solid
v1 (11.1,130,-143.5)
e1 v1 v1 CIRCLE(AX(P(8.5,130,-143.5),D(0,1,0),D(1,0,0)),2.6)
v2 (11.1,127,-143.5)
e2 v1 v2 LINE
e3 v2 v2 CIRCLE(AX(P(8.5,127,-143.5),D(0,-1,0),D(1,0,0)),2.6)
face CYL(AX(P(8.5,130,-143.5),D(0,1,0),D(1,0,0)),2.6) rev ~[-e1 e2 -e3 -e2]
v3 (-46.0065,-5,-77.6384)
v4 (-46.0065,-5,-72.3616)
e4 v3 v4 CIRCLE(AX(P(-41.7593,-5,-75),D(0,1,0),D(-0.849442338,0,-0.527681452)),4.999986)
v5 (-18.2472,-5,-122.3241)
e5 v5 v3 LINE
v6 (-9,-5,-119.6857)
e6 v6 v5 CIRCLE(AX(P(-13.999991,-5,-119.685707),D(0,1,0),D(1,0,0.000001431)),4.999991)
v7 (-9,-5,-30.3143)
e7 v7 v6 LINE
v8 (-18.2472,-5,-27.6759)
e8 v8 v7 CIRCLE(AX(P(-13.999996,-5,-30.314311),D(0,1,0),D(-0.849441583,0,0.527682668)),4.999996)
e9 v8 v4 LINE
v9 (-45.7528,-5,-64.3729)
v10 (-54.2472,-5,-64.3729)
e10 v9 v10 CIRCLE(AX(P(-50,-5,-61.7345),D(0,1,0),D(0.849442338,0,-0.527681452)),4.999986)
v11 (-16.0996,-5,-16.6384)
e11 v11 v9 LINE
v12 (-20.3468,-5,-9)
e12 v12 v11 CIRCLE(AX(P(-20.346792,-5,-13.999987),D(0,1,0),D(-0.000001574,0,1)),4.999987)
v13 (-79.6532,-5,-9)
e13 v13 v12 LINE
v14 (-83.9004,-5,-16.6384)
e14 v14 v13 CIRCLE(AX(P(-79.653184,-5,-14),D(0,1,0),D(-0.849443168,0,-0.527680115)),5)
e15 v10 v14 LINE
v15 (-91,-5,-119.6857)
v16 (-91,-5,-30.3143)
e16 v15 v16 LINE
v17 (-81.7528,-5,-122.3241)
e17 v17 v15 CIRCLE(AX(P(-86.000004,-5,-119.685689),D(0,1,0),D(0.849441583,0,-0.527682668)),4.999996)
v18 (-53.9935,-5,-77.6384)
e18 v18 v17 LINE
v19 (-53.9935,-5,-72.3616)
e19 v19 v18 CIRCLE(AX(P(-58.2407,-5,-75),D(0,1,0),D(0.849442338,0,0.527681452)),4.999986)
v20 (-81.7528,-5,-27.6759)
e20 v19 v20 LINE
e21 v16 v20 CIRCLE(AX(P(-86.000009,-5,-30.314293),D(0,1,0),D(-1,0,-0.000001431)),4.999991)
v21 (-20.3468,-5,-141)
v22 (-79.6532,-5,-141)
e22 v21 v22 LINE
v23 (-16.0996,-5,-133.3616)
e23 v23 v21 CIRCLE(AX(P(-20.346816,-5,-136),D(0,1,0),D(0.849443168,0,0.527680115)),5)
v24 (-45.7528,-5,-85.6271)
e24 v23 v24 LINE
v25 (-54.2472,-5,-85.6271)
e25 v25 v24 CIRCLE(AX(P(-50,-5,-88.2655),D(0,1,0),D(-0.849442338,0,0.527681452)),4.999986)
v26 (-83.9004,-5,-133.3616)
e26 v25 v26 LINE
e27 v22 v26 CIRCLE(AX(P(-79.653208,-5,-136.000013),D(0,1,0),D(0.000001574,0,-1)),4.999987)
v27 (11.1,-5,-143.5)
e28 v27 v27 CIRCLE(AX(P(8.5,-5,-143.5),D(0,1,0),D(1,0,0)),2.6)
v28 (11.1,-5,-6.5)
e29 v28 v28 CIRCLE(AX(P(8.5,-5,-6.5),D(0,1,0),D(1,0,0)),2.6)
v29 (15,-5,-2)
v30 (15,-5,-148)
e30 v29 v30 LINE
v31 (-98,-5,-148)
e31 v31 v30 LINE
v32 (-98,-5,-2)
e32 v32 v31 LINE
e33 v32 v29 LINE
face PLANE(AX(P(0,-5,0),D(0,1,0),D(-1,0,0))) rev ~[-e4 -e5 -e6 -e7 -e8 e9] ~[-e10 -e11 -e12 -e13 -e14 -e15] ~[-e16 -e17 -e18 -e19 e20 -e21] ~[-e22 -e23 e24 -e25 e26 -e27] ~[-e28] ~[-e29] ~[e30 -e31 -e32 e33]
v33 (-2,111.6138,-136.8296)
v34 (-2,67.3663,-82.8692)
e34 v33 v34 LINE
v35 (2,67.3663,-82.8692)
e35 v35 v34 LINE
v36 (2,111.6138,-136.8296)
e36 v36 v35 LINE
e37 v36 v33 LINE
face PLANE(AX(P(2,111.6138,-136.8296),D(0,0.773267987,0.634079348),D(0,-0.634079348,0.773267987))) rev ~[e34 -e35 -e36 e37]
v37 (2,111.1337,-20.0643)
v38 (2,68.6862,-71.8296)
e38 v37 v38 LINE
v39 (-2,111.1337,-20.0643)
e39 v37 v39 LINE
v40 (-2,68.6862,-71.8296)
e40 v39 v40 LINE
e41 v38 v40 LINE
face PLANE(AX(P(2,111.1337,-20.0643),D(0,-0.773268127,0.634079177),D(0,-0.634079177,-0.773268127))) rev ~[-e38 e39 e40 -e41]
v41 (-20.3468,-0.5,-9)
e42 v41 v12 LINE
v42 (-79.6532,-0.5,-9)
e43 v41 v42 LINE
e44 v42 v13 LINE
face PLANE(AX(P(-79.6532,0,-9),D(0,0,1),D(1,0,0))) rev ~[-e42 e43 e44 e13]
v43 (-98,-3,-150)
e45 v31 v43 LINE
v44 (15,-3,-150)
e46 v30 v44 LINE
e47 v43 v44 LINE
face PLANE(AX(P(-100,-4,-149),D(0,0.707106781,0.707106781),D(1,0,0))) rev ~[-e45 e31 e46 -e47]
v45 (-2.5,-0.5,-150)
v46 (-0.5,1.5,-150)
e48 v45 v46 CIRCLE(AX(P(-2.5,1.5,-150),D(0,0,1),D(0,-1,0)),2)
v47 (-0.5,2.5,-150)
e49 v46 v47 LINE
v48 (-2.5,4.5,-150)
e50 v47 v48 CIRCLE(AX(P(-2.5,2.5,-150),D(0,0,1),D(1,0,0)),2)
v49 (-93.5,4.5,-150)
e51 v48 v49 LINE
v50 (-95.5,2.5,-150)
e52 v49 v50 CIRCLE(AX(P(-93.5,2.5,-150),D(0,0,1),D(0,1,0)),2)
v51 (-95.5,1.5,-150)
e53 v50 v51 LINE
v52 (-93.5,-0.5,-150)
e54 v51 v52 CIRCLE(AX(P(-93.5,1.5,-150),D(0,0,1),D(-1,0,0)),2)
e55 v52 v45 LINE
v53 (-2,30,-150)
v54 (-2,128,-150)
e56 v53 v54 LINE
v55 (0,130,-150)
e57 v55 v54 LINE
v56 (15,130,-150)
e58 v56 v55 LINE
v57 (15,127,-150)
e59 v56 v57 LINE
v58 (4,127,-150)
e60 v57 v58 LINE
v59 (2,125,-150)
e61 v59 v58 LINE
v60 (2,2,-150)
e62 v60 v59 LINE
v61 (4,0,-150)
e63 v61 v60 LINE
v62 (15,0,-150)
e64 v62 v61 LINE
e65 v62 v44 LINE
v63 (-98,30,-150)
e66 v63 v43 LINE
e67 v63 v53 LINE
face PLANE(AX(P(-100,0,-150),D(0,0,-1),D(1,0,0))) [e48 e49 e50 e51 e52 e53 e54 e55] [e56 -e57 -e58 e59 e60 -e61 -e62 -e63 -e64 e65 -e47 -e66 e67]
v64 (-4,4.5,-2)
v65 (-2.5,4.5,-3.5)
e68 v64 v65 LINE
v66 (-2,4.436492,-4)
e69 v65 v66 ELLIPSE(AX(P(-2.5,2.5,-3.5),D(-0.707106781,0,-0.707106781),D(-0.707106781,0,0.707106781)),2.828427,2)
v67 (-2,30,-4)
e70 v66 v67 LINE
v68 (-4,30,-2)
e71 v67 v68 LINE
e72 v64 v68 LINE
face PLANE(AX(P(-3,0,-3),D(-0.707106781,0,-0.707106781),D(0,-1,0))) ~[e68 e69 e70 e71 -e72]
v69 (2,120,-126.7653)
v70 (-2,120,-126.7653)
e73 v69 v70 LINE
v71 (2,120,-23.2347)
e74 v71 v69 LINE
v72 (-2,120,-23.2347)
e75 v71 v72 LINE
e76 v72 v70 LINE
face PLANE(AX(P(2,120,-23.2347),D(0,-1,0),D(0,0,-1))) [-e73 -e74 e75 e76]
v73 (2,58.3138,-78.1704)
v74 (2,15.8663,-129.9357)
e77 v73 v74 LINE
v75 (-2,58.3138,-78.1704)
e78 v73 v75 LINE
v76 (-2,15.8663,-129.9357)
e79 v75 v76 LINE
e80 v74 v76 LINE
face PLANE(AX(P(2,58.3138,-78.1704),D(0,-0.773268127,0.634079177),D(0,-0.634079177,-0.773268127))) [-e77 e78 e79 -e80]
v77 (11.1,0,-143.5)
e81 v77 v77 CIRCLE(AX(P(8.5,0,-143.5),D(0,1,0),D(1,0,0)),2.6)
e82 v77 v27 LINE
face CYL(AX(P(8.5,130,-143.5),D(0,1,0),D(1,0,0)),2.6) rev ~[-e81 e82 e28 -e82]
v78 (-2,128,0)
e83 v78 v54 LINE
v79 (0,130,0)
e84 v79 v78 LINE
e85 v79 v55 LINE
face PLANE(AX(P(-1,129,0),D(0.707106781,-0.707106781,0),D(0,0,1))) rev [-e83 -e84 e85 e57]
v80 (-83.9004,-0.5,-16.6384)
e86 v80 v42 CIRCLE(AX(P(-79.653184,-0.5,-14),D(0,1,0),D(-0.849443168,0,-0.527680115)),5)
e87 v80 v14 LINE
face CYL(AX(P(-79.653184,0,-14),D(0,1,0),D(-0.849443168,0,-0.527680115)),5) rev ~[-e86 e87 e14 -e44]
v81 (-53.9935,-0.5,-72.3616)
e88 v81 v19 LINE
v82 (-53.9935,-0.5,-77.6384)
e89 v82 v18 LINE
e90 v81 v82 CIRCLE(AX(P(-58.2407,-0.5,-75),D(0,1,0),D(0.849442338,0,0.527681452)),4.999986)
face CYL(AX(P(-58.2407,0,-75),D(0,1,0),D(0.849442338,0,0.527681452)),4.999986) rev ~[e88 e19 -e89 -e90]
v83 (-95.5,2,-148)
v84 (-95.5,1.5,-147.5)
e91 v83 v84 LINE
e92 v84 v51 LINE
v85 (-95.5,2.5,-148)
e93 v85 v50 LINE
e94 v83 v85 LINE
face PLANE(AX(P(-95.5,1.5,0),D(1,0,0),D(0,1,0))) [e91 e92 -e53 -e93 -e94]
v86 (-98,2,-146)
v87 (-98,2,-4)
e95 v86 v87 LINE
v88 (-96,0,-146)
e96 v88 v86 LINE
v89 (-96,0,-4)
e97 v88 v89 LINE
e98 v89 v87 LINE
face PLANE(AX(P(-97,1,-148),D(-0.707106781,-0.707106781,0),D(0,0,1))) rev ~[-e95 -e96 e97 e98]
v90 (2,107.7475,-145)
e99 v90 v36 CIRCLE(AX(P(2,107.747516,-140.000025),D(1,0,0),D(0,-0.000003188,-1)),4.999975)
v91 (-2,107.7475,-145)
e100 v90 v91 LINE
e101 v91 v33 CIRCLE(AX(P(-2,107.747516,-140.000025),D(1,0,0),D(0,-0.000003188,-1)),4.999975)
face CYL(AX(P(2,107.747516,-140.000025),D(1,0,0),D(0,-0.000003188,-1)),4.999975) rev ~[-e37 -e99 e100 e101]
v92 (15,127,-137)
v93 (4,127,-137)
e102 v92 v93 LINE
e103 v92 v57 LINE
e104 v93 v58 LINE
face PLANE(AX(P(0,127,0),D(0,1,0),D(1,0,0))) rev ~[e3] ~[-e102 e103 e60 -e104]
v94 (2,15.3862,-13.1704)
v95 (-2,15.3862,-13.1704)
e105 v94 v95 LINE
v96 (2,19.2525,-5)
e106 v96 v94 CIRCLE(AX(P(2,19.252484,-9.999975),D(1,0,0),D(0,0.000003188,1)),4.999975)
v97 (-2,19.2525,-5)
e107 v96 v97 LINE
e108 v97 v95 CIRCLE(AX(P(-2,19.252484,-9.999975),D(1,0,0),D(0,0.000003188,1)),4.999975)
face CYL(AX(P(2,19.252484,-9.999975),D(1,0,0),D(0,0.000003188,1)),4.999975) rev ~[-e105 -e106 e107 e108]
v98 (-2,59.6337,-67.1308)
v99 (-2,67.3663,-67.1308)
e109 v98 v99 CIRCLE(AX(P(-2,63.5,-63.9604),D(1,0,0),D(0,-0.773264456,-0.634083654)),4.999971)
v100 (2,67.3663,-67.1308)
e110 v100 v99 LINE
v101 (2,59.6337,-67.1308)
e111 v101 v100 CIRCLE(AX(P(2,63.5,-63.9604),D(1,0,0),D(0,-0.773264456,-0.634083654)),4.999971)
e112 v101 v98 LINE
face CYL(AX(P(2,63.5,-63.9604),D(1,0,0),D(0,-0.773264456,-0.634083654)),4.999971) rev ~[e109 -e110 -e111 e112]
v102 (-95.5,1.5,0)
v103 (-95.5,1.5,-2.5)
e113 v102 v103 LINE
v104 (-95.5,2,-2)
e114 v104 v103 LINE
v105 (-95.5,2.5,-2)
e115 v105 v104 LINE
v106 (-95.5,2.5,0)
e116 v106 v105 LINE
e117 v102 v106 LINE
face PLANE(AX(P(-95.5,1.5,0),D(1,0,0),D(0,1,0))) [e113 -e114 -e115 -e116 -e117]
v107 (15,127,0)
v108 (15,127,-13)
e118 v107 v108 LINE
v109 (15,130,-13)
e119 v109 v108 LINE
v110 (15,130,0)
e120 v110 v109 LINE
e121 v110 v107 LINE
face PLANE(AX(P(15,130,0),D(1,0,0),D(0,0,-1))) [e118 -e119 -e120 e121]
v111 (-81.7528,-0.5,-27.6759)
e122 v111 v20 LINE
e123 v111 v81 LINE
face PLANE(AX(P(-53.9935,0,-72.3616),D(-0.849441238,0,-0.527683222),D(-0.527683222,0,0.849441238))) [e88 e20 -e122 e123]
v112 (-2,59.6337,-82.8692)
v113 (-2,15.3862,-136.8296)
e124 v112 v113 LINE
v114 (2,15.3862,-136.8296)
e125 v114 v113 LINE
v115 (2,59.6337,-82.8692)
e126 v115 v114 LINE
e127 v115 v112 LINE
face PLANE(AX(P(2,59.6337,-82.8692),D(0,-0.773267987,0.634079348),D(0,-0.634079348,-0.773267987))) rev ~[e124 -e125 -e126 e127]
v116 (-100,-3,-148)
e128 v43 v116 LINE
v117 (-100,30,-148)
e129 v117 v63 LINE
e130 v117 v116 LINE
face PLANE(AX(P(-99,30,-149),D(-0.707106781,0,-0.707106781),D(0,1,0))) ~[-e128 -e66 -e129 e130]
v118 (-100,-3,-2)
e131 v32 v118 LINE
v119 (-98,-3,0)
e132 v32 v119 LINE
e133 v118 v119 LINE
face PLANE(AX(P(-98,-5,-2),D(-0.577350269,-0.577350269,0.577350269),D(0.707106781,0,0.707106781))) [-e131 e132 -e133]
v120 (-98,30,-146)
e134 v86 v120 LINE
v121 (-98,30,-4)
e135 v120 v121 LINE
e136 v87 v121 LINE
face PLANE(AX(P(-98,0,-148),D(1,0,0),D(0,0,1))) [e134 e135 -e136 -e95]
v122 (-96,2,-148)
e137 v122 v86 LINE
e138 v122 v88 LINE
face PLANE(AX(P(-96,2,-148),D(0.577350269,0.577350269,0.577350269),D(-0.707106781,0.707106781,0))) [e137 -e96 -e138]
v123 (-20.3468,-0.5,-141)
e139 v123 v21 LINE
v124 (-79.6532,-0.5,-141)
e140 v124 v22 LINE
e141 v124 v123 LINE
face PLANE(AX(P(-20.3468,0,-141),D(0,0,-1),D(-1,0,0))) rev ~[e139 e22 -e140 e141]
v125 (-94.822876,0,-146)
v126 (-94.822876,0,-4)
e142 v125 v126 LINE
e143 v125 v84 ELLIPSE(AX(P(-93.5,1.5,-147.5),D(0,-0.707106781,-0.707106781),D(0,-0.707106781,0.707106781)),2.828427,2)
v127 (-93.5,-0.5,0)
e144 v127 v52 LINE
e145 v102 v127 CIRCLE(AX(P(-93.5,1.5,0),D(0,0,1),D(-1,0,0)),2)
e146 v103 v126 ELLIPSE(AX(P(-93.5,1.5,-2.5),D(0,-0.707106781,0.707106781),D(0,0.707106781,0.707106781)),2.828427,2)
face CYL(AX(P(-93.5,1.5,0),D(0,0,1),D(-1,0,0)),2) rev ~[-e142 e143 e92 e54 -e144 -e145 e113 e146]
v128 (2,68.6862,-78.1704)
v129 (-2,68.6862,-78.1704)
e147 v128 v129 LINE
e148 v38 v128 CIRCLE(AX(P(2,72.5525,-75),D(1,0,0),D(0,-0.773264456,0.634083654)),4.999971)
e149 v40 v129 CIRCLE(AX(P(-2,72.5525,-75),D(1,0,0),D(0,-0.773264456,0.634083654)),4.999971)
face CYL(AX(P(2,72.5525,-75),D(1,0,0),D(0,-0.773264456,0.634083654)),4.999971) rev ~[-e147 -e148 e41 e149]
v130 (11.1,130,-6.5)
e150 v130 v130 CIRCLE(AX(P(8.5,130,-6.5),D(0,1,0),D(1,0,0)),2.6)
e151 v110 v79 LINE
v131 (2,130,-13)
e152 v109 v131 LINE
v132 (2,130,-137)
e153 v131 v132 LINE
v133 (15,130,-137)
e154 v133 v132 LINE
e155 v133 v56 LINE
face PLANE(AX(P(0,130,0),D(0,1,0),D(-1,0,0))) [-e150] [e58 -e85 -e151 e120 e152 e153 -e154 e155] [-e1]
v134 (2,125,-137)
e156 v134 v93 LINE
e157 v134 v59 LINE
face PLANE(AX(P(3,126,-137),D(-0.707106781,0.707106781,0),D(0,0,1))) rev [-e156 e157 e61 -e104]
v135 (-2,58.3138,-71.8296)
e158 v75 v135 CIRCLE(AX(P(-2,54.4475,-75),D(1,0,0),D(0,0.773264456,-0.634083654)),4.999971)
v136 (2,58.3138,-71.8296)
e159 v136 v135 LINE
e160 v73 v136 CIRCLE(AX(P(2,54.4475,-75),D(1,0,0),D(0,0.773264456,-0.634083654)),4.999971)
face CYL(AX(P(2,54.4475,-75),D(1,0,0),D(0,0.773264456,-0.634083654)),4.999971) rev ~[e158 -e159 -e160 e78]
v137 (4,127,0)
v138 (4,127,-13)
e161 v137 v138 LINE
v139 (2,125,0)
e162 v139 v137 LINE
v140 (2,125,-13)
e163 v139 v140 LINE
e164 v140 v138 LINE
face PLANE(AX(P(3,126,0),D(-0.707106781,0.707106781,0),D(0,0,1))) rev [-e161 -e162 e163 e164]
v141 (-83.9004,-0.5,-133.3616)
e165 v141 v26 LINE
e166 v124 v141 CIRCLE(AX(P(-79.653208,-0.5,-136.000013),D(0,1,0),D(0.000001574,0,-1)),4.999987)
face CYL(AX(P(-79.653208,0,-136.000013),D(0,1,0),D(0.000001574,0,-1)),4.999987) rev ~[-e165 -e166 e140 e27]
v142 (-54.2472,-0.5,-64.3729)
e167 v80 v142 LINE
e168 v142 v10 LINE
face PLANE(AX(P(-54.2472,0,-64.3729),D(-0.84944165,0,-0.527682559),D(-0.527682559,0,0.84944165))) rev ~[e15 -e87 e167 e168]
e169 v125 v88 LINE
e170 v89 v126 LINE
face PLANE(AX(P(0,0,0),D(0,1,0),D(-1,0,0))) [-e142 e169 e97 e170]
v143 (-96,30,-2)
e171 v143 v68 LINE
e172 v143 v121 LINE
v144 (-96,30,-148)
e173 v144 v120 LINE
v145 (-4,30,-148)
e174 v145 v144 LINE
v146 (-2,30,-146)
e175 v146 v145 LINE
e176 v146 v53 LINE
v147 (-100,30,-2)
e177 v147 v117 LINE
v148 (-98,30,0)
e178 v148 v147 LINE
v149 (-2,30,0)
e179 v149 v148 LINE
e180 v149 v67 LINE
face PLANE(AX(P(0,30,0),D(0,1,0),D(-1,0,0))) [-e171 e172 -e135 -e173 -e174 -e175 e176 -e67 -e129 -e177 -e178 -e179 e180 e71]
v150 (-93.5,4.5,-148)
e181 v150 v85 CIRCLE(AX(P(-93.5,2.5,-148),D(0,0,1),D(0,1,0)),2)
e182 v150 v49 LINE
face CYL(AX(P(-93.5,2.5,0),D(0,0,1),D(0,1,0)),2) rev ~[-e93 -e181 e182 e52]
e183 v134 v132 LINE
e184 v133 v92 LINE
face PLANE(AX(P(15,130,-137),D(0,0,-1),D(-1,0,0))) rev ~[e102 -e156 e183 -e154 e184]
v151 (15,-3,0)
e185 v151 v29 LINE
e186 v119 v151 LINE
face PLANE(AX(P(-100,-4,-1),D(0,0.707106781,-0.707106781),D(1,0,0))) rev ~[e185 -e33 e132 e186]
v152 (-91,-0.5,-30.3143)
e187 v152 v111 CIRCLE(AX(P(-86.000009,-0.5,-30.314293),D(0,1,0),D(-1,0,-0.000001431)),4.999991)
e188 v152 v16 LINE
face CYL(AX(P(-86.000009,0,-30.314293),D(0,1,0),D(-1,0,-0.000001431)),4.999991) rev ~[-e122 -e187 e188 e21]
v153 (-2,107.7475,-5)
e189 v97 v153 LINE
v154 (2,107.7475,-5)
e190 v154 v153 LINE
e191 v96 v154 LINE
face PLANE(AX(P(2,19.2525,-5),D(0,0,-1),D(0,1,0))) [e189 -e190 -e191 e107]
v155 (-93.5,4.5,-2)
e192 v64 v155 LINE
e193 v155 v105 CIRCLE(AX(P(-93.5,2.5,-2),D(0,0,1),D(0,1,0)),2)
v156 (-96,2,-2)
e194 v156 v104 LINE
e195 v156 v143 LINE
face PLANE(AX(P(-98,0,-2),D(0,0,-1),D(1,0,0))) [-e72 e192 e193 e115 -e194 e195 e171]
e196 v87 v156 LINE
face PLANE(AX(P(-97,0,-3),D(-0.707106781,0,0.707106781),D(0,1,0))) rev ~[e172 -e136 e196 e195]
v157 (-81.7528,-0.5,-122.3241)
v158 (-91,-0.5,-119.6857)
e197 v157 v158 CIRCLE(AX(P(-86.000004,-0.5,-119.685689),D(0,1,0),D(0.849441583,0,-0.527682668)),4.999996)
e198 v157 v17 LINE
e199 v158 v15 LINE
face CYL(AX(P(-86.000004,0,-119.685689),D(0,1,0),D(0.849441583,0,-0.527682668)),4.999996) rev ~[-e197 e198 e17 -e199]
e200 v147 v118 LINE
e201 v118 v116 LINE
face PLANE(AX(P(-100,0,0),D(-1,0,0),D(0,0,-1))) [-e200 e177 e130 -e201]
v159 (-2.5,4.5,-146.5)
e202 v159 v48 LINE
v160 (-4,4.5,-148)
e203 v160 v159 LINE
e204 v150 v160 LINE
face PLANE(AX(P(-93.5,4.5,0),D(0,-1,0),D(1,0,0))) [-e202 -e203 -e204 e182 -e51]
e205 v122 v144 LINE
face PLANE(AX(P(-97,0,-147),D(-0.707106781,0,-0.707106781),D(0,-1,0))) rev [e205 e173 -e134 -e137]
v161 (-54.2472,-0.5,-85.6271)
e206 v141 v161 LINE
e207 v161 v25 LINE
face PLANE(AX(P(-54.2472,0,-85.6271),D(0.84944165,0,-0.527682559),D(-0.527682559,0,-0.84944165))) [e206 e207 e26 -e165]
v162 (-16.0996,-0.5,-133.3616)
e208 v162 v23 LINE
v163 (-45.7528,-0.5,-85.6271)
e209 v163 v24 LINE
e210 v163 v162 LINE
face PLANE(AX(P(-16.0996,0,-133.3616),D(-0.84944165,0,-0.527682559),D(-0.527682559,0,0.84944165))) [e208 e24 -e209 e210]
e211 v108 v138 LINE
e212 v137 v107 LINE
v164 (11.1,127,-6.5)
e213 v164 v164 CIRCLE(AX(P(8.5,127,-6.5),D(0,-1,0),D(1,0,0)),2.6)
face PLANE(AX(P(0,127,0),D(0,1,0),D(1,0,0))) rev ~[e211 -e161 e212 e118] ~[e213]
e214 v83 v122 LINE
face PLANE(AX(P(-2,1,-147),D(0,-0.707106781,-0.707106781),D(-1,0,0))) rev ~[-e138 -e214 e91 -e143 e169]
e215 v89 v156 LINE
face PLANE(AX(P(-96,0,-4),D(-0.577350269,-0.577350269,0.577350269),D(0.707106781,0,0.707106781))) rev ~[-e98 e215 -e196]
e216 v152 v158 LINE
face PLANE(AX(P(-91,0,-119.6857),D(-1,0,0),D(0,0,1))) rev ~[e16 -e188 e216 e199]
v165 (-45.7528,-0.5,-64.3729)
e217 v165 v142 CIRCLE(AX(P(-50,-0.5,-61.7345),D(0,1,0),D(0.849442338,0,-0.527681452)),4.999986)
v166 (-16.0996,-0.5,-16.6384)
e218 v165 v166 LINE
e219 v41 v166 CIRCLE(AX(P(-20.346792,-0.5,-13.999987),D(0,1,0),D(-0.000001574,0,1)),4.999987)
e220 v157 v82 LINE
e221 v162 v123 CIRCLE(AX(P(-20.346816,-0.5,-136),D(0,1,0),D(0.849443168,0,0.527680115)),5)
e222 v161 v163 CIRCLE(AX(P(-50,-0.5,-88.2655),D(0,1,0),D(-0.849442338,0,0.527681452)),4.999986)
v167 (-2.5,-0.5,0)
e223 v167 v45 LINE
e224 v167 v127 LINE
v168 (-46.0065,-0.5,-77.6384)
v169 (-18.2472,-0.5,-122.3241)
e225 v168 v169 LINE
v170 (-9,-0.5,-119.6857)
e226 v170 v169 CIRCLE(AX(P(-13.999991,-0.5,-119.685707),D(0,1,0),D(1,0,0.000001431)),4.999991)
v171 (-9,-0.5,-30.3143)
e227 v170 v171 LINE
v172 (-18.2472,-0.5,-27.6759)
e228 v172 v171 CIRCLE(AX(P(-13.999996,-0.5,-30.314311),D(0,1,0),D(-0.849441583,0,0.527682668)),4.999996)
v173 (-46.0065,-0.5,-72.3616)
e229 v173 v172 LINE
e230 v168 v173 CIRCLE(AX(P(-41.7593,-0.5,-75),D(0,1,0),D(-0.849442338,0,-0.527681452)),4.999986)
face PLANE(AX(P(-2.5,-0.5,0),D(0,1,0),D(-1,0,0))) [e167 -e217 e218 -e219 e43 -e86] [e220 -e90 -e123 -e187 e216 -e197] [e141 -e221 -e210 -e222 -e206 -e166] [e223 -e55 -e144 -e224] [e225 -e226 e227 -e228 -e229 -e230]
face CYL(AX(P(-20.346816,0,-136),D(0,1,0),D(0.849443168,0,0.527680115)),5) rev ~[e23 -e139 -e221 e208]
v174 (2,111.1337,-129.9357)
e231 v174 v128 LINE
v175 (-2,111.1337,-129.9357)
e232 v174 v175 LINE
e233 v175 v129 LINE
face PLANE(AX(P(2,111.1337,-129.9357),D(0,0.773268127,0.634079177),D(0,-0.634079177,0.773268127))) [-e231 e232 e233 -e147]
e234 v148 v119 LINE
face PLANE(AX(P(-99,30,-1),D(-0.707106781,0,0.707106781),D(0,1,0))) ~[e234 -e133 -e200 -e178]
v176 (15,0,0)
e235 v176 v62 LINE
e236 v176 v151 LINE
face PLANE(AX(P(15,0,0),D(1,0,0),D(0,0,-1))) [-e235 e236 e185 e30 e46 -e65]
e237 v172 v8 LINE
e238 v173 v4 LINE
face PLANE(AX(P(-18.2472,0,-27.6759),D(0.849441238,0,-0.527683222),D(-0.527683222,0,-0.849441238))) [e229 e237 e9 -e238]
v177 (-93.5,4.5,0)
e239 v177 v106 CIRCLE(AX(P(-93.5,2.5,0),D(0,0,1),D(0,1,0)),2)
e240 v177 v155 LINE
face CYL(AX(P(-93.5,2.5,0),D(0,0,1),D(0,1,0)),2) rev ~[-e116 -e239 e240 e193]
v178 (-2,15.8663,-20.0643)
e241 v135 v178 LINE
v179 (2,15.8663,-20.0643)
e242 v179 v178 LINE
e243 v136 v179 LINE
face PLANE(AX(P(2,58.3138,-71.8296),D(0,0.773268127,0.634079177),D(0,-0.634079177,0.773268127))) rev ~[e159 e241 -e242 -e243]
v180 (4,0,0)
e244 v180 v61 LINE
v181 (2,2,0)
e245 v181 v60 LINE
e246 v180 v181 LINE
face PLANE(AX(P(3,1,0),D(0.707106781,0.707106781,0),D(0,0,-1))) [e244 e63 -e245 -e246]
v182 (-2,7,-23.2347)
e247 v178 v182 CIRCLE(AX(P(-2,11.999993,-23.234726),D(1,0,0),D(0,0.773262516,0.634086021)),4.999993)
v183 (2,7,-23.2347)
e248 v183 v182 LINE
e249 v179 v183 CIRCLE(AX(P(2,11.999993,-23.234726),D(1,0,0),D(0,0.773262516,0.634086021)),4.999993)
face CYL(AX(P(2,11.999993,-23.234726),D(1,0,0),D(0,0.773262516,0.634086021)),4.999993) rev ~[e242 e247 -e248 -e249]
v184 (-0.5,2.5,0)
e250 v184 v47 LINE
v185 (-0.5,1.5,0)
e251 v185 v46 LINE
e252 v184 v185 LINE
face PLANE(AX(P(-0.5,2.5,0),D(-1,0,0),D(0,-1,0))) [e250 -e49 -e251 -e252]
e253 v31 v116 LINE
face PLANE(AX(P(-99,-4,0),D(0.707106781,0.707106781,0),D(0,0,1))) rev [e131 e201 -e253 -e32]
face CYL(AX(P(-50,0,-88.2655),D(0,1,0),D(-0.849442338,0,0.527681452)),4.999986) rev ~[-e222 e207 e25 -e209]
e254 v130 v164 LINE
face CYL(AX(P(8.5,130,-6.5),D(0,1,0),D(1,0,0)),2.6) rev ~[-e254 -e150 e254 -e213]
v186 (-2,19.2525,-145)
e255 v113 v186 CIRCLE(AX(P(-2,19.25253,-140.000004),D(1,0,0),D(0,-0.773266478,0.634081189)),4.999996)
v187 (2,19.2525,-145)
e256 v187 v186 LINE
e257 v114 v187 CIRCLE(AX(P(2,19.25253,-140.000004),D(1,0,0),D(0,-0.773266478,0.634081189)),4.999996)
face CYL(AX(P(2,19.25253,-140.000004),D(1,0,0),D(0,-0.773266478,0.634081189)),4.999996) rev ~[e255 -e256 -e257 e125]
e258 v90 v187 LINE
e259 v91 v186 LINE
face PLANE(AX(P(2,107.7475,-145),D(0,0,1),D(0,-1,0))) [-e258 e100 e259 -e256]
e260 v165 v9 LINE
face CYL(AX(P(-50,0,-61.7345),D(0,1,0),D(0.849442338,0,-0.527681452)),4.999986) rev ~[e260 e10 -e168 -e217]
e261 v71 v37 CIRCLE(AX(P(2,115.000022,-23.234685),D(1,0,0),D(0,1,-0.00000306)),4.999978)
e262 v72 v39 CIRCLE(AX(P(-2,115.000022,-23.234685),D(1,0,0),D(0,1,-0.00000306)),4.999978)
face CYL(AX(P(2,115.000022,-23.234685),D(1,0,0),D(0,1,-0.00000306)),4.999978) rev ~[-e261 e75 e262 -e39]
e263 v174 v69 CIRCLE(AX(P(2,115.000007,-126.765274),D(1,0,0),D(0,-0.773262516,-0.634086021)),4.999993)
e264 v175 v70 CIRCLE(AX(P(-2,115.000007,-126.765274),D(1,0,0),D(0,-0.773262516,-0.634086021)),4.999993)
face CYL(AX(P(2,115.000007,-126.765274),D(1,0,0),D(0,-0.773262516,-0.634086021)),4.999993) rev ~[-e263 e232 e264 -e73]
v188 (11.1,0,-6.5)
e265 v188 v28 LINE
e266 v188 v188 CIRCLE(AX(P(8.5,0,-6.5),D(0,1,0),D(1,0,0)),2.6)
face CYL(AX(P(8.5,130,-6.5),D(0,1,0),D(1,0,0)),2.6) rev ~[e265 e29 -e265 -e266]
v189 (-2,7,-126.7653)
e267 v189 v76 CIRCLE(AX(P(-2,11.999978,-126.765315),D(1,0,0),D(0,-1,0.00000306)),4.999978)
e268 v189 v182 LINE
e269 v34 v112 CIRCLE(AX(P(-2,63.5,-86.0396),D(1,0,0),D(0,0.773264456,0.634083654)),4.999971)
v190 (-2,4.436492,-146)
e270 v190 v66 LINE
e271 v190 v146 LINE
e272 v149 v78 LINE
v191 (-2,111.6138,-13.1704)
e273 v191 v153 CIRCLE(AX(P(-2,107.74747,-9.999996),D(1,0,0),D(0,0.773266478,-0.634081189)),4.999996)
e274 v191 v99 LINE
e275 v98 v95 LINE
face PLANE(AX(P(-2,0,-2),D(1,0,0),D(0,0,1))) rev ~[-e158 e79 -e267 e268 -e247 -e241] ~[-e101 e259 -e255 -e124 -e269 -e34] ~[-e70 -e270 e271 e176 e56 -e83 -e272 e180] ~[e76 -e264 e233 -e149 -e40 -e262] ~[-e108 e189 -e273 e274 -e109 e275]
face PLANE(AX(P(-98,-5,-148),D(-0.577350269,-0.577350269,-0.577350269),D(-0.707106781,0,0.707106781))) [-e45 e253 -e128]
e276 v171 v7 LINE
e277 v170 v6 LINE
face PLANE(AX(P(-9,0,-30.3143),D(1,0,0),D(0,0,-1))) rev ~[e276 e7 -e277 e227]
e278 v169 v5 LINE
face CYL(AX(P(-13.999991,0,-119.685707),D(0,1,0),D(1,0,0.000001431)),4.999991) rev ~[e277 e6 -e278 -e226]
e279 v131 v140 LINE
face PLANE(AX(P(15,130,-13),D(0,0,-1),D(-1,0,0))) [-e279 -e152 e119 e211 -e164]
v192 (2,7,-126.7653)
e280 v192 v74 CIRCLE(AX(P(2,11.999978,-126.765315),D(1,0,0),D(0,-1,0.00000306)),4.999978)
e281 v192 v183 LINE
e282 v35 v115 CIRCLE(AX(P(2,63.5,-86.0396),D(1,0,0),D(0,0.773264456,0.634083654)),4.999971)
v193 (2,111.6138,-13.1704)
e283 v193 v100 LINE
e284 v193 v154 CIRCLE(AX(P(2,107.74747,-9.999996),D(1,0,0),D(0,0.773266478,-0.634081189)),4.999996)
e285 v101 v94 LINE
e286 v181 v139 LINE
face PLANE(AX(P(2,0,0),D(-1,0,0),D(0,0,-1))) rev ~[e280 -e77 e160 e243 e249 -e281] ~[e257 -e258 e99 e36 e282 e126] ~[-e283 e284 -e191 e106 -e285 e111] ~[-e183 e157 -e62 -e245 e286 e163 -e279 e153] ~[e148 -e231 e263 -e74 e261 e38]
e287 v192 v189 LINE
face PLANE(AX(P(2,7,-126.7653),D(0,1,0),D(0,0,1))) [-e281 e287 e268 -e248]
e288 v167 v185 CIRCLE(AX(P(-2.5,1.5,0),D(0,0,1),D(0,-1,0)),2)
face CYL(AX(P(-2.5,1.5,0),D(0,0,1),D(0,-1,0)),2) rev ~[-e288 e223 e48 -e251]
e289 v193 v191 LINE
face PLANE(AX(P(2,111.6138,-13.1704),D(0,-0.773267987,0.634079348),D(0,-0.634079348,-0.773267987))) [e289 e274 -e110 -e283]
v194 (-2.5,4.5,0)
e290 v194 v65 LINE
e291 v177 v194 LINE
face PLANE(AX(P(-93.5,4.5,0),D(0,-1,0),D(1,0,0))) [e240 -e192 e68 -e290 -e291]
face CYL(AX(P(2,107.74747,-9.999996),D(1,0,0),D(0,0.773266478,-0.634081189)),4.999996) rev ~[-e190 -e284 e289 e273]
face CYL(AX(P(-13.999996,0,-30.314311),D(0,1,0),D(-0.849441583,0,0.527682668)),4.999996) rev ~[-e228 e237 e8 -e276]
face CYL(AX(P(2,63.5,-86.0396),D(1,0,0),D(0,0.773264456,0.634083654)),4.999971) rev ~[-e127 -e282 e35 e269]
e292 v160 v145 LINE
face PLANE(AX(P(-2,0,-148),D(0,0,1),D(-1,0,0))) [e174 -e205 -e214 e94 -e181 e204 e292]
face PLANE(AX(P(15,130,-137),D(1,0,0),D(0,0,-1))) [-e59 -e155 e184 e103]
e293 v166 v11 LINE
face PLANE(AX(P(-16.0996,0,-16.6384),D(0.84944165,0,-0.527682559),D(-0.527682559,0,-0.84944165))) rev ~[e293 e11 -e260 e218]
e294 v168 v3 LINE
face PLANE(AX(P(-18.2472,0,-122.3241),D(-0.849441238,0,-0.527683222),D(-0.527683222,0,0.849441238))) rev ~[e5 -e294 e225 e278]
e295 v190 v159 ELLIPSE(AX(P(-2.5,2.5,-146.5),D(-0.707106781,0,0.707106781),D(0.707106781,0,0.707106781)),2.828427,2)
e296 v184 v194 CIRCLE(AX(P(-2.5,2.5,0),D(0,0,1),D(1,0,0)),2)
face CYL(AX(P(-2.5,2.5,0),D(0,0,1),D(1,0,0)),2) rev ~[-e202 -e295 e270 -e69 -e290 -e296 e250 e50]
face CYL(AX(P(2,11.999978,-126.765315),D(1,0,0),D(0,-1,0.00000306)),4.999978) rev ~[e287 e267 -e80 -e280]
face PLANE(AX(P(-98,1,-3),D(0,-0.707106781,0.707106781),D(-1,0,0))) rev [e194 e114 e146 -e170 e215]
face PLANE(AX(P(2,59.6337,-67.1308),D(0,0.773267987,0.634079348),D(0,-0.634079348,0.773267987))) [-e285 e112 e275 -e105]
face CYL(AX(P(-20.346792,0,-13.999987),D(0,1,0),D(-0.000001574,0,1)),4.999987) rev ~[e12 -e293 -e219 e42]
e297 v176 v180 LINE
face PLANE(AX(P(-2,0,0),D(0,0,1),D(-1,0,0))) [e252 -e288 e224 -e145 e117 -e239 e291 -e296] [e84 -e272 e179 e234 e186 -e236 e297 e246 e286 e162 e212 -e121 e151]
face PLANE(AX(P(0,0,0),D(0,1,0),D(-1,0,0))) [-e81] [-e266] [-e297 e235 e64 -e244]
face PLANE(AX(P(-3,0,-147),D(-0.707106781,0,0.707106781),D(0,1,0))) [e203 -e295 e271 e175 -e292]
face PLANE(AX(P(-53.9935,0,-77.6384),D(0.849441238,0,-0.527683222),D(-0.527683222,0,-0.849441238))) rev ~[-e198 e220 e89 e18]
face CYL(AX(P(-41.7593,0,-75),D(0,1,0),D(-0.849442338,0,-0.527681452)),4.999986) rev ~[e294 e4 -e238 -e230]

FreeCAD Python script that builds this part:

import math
import FreeCAD as App
import Part
import Sketcher
from FreeCAD import Vector
Q = App.Units.Quantity


def edges_at(feature, points):
    """Names of the edges that pass closest to the given points."""
    edges = feature.Shape.Edges
    near = lambda p: min(range(len(edges)), key=lambda i: edges[i].distToShape(Part.Vertex(*p))[0])
    return sorted({f"Edge{near(p) + 1}" for p in points})

doc = App.newDocument("Part")
body = doc.addObject("PartDesign::Body", "Body")

# Sketch on XZ plane
sketch1 = body.newObject("Sketcher::SketchObject", "Sketch")
sketch1.AttachmentSupport = (doc.getObject("XZ_Plane"), [""])
sketch1.MapMode = "FlatFace"
sketch1.addGeometry([
    Part.LineSegment(Vector(-100, 0, 0), Vector(-2, 0, 0)),  # 0
    Part.LineSegment(Vector(-2, 0, 0), Vector(-2, -2, 0)),  # 1
    Part.LineSegment(Vector(-2, -2, 0), Vector(-98, -2, 0)),  # 2
    Part.LineSegment(Vector(-98, -2, 0), Vector(-98, -148, 0)),  # 3
    Part.LineSegment(Vector(-98, -148, 0), Vector(-2, -148, 0)),  # 4
    Part.LineSegment(Vector(-2, -148, 0), Vector(-2, -150, 0)),  # 5
    Part.LineSegment(Vector(-2, -150, 0), Vector(-100, -150, 0)),  # 6
    Part.LineSegment(Vector(-100, -150, 0), Vector(-100, 0, 0)),  # 7
], False)
sketch1.addConstraint([
    Sketcher.Constraint("Coincident", 0, 2, 1, 1),
    Sketcher.Constraint("Coincident", 1, 2, 2, 1),
    Sketcher.Constraint("Coincident", 2, 2, 3, 1),
    Sketcher.Constraint("Coincident", 3, 2, 4, 1),
    Sketcher.Constraint("Coincident", 4, 2, 5, 1),
    Sketcher.Constraint("Coincident", 5, 2, 6, 1),
    Sketcher.Constraint("Coincident", 6, 2, 7, 1),
    Sketcher.Constraint("Coincident", 7, 2, 0, 1),
    Sketcher.Constraint("Horizontal", 0),
    Sketcher.Constraint("Vertical", 1),
    Sketcher.Constraint("Horizontal", 2),
    Sketcher.Constraint("Vertical", 3),
    Sketcher.Constraint("Horizontal", 4),
    Sketcher.Constraint("Vertical", 5),
    Sketcher.Constraint("Horizontal", 6),
    Sketcher.Constraint("Vertical", 7),
    Sketcher.Constraint("PointOnObject", 0, 2, -1),
    Sketcher.Constraint("Vertical", 1, 2, 4, 2),
    Sketcher.Constraint("Equal", 1, 5),
    Sketcher.Constraint("DistanceY", 1, 2, 1, 1, 2.0),
    Sketcher.Constraint("DistanceY", 7, 1, 7, 2, 150.0),
    Sketcher.Constraint("DistanceX", 0, 2, -1, 1, 2.0),
    Sketcher.Constraint("DistanceX", 6, 2, -1, 1, 100.0),
    Sketcher.Constraint("DistanceX", 6, 2, 3, 2, 2.0),
])
pad1 = body.newObject("PartDesign::Pad", "Pad")
pad1.Profile = sketch1
pad1.Length = 30
pad1.Reversed = True

# Sketch on XZ plane
sketch2 = body.newObject("Sketcher::SketchObject", "Sketch001")
sketch2.AttachmentSupport = (doc.getObject("XZ_Plane"), [""])
sketch2.MapMode = "FlatFace"
sketch2.addGeometry([
    Part.LineSegment(Vector(-2, 0, 0), Vector(2, 0, 0)),
    Part.LineSegment(Vector(2, 0, 0), Vector(2, -150, 0)),
    Part.LineSegment(Vector(2, -150, 0), Vector(-2, -150, 0)),
    Part.LineSegment(Vector(-2, -150, 0), Vector(-2, 0, 0)),
], False)
sketch2.addConstraint([
    Sketcher.Constraint("Coincident", 0, 2, 1, 1),
    Sketcher.Constraint("Coincident", 1, 2, 2, 1),
    Sketcher.Constraint("Coincident", 2, 2, 3, 1),
    Sketcher.Constraint("Coincident", 3, 2, 0, 1),
    Sketcher.Constraint("Horizontal", 0),
    Sketcher.Constraint("Vertical", 1),
    Sketcher.Constraint("Horizontal", 2),
    Sketcher.Constraint("Vertical", 3),
    Sketcher.Constraint("Symmetric", 0, 2, 3, 2, -1, 1),
    Sketcher.Constraint("DistanceX", 0, 1, 0, 2, 4.0),
    Sketcher.Constraint("DistanceY", 1, 2, 1, 1, 150.0),
])
pad2 = body.newObject("PartDesign::Pad", "Pad001")
pad2.Profile = sketch2
pad2.Length = 130
pad2.Reversed = True

# Sketch on XZ plane
sketch3 = body.newObject("Sketcher::SketchObject", "Sketch002")
sketch3.AttachmentSupport = (doc.getObject("XZ_Plane"), [""])
sketch3.MapMode = "FlatFace"
sketch3.addGeometry([
    Part.LineSegment(Vector(15, 0, 0), Vector(15, -150, 0)),
    Part.LineSegment(Vector(15, -150, 0), Vector(-100, -150, 0)),
    Part.LineSegment(Vector(-100, -150, 0), Vector(-100, 0, 0)),
    Part.LineSegment(Vector(-100, 0, 0), Vector(15, 0, 0)),
], False)
sketch3.addConstraint([
    Sketcher.Constraint("Coincident", 0, 2, 1, 1),
    Sketcher.Constraint("Coincident", 1, 2, 2, 1),
    Sketcher.Constraint("Coincident", 2, 2, 3, 1),
    Sketcher.Constraint("Coincident", 3, 2, 0, 1),
    Sketcher.Constraint("Vertical", 0),
    Sketcher.Constraint("Horizontal", 1),
    Sketcher.Constraint("Vertical", 2),
    Sketcher.Constraint("Horizontal", 3),
    Sketcher.Constraint("PointOnObject", 2, 2, -1),
    Sketcher.Constraint("DistanceY", 0, 2, 0, 1, 150.0),
    Sketcher.Constraint("DistanceX", -1, 1, 0, 2, 15.0),
    Sketcher.Constraint("DistanceX", 1, 2, -1, 1, 100.0),
])
pad3 = body.newObject("PartDesign::Pad", "Pad002")
pad3.Profile = sketch3
pad3.Length = 5

# Sketch on XZ plane
sketch4 = body.newObject("Sketcher::SketchObject", "Sketch003")
sketch4.AttachmentSupport = (doc.getObject("XZ_Plane"), [""])
sketch4.MapMode = "FlatFace"
sketch4.AttachmentOffset = App.Placement(Vector(0, 0, -130), App.Rotation())
sketch4.addGeometry([
    Part.LineSegment(Vector(2, 0, 0), Vector(15, 0, 0)),  # 0
    Part.LineSegment(Vector(15, 0, 0), Vector(15, -13, 0)),  # 1
    Part.LineSegment(Vector(15, -13, 0), Vector(2, -13, 0)),  # 2
    Part.LineSegment(Vector(2, -13, 0), Vector(2, 0, 0)),  # 3
    Part.Circle(Vector(8.5, -6.5, 0), Vector(0, 0, 1), 2.6),  # 4
    Part.LineSegment(Vector(2, -137, 0), Vector(15, -137, 0)),  # 5
    Part.LineSegment(Vector(15, -137, 0), Vector(15, -150, 0)),  # 6
    Part.LineSegment(Vector(15, -150, 0), Vector(2, -150, 0)),  # 7
    Part.LineSegment(Vector(2, -150, 0), Vector(2, -137, 0)),  # 8
    Part.Circle(Vector(8.5, -143.5, 0), Vector(0, 0, 1), 2.6),  # 9
], False)
sketch4.addConstraint([
    Sketcher.Constraint("Coincident", 0, 2, 1, 1),
    Sketcher.Constraint("Coincident", 1, 2, 2, 1),
    Sketcher.Constraint("Coincident", 2, 2, 3, 1),
    Sketcher.Constraint("Coincident", 3, 2, 0, 1),
    Sketcher.Constraint("Coincident", 5, 2, 6, 1),
    Sketcher.Constraint("Coincident", 6, 2, 7, 1),
    Sketcher.Constraint("Coincident", 7, 2, 8, 1),
    Sketcher.Constraint("Coincident", 8, 2, 5, 1),
    Sketcher.Constraint("Horizontal", 0),
    Sketcher.Constraint("Vertical", 1),
    Sketcher.Constraint("Horizontal", 2),
    Sketcher.Constraint("Vertical", 3),
    Sketcher.Constraint("Horizontal", 5),
    Sketcher.Constraint("Vertical", 6),
    Sketcher.Constraint("Horizontal", 7),
    Sketcher.Constraint("Vertical", 8),
    Sketcher.Constraint("Equal", 4, 9),
    Sketcher.Constraint("PointOnObject", 0, 2, -1),
    Sketcher.Constraint("Vertical", 4, 3, 9, 3),
    Sketcher.Constraint("Vertical", 1, 2, 5, 2),
    Sketcher.Constraint("Vertical", 3, 2, 7, 2),
    Sketcher.Constraint("Equal", 7, 1),
    Sketcher.Constraint("Equal", 3, 6),
    Sketcher.Constraint("Diameter", 4, 5.2),
    Sketcher.Constraint("DistanceX", 0, 1, 0, 2, 13.0),
    Sketcher.Constraint("DistanceX", -1, 1, 0, 2, 15.0),
    Sketcher.Constraint("DistanceY", 5, 2, -1, 1, 137.0),
    Sketcher.Constraint("DistanceY", 9, 3, 4, 3, 137.0),
    Sketcher.Constraint("DistanceX", -1, 1, 4, 3, 8.5),
    Sketcher.Constraint("DistanceY", 4, 3, -1, 1, 6.5),
])
pad4 = body.newObject("PartDesign::Pad", "Pad003")
pad4.Profile = sketch4
pad4.Length = 3

# Sketch on XZ plane
sketch5 = body.newObject("Sketcher::SketchObject", "Sketch004")
sketch5.AttachmentSupport = (doc.getObject("XZ_Plane"), [""])
sketch5.MapMode = "FlatFace"
sketch5.AttachmentOffset = App.Placement(Vector(0, 0, -130), App.Rotation())
sketch5.addGeometry([
    Part.Circle(Vector(8.5, -6.5, 0), Vector(0, 0, 1), 2.6),
    Part.Circle(Vector(8.5, -143.5, 0), Vector(0, 0, 1), 2.6),
], False)
sketch5.addConstraint([
    Sketcher.Constraint("Equal", 0, 1),
    Sketcher.Constraint("Vertical", 0, 3, 1, 3),
    Sketcher.Constraint("Diameter", 0, 5.2),
    Sketcher.Constraint("DistanceY", 1, 3, 0, 3, 137.0),
    Sketcher.Constraint("DistanceX", -1, 1, 0, 3, 8.5),
    Sketcher.Constraint("DistanceY", 0, 3, -1, 1, 6.5),
])
pocket1 = body.newObject("PartDesign::Pocket", "Pocket")
pocket1.Profile = sketch5
pocket1.Length = 150
pocket1.Reversed = True
doc.recompute()

chamfer = body.newObject("PartDesign::Chamfer", "Chamfer")
chamfer.Base = (pocket1, edges_at(pocket1, [
    (-100, 12.5, -150),
    (-98, 15, -2),
    (-98, 0, -75),
    (-50, 0, -2),
    (-100, 12.5, 0),
    (-50, 0, -148),
    (-98, 15, -148),
    (-2, 0, -75),
    (-2, 15, -148),
    (-2, 15, -2),
    (-42.5, -5, -150),
    (-100, -5, -75),
    (-42.5, -5, 0),
    (2, 0, -75),
    (-2, 130, -75),
    (2, 127, -6.5),
    (2, 127, -143.5),
]))
chamfer.Size = 2

# Sketch on YZ plane
sketch6 = body.newObject("Sketcher::SketchObject", "Sketch005")
sketch6.AttachmentSupport = (doc.getObject("YZ_Plane"), [""])
sketch6.MapMode = "FlatFace"
sketch6.AttachmentOffset = App.Placement(Vector(0, 0, 2), App.Rotation())
sketch6.addGeometry([
    Part.LineSegment(Vector(7, -23.2, 0), Vector(7, -126.8, 0)),  # 0
    Part.ArcOfCircle(Part.Circle(Vector(12, -126.8, 0), Vector(0, 0, 1), 5), math.radians(180), math.radians(321)),  # 1
    Part.LineSegment(Vector(15.9, -129.9, 0), Vector(58.3, -78.2, 0)),  # 2
    Part.ArcOfCircle(Part.Circle(Vector(54.4, -75, 0), Vector(0, 0, 1), 5), math.radians(-39), math.radians(39)),  # 3
    Part.LineSegment(Vector(58.3, -71.8, 0), Vector(15.9, -20.1, 0)),  # 4
    Part.ArcOfCircle(Part.Circle(Vector(12, -23.2, 0), Vector(0, 0, 1), 5), math.radians(39), math.radians(180)),  # 5
    Part.LineSegment(Vector(120, -126.8, 0), Vector(120, -23.2, 0)),  # 6
    Part.ArcOfCircle(Part.Circle(Vector(115, -23.2, 0), Vector(0, 0, 1), 5), math.radians(0), math.radians(141)),  # 7
    Part.LineSegment(Vector(111.1, -20.1, 0), Vector(68.7, -71.8, 0)),  # 8
    Part.ArcOfCircle(Part.Circle(Vector(72.6, -75, 0), Vector(0, 0, 1), 5), math.radians(141), math.radians(219)),  # 9
    Part.LineSegment(Vector(68.7, -78.2, 0), Vector(111.1, -129.9, 0)),  # 10
    Part.ArcOfCircle(Part.Circle(Vector(115, -126.8, 0), Vector(0, 0, 1), 5), math.radians(-141), math.radians(0)),  # 11
    Part.LineSegment(Vector(19.3, -145, 0), Vector(107.7, -145, 0)),  # 12
    Part.ArcOfCircle(Part.Circle(Vector(107.7, -140, 0), Vector(0, 0, 1), 5), math.radians(-90), math.radians(39)),  # 13
    Part.LineSegment(Vector(111.6, -136.8, 0), Vector(67.4, -82.9, 0)),  # 14
    Part.ArcOfCircle(Part.Circle(Vector(63.5, -86, 0), Vector(0, 0, 1), 5), math.radians(39), math.radians(141)),  # 15
    Part.LineSegment(Vector(59.6, -82.9, 0), Vector(15.4, -136.8, 0)),  # 16
    Part.ArcOfCircle(Part.Circle(Vector(19.3, -140, 0), Vector(0, 0, 1), 5), math.radians(141), math.radians(270)),  # 17
    Part.LineSegment(Vector(107.7, -5, 0), Vector(19.3, -5, 0)),  # 18
    Part.ArcOfCircle(Part.Circle(Vector(19.3, -10, 0), Vector(0, 0, 1), 5), math.radians(90), math.radians(219)),  # 19
    Part.LineSegment(Vector(15.4, -13.2, 0), Vector(59.6, -67.1, 0)),  # 20
    Part.ArcOfCircle(Part.Circle(Vector(63.5, -64, 0), Vector(0, 0, 1), 5), math.radians(-141), math.radians(-39)),  # 21
    Part.LineSegment(Vector(67.4, -67.1, 0), Vector(111.6, -13.2, 0)),  # 22
    Part.ArcOfCircle(Part.Circle(Vector(107.7, -10, 0), Vector(0, 0, 1), 5), math.radians(-39), math.radians(90)),  # 23
], False)
sketch6.addConstraint([
    Sketcher.Constraint("Tangent", 0, 2, 1, 1),
    Sketcher.Constraint("Tangent", 1, 2, 2, 1),
    Sketcher.Constraint("Tangent", 2, 2, 3, 1),
    Sketcher.Constraint("Tangent", 3, 2, 4, 1),
    Sketcher.Constraint("Tangent", 4, 2, 5, 1),
    Sketcher.Constraint("Tangent", 5, 2, 0, 1),
    Sketcher.Constraint("Tangent", 6, 2, 7, 1),
    Sketcher.Constraint("Tangent", 7, 2, 8, 1),
    Sketcher.Constraint("Tangent", 8, 2, 9, 1),
    Sketcher.Constraint("Tangent", 9, 2, 10, 1),
    Sketcher.Constraint("Tangent", 10, 2, 11, 1),
    Sketcher.Constraint("Tangent", 11, 2, 6, 1),
    Sketcher.Constraint("Tangent", 12, 2, 13, 1),
    Sketcher.Constraint("Tangent", 13, 2, 14, 1),
    Sketcher.Constraint("Tangent", 14, 2, 15, 1),
    Sketcher.Constraint("Tangent", 15, 2, 16, 1),
    Sketcher.Constraint("Tangent", 16, 2, 17, 1),
    Sketcher.Constraint("Tangent", 17, 2, 12, 1),
    Sketcher.Constraint("Tangent", 18, 2, 19, 1),
    Sketcher.Constraint("Tangent", 19, 2, 20, 1),
    Sketcher.Constraint("Tangent", 20, 2, 21, 1),
    Sketcher.Constraint("Tangent", 21, 2, 22, 1),
    Sketcher.Constraint("Tangent", 22, 2, 23, 1),
    Sketcher.Constraint("Tangent", 23, 2, 18, 1),
    Sketcher.Constraint("Vertical", 0),
    Sketcher.Constraint("Vertical", 6),
    Sketcher.Constraint("Horizontal", 12),
    Sketcher.Constraint("Horizontal", 18),
    Sketcher.Constraint("Equal", 1, 3),
    Sketcher.Constraint("Equal", 3, 5),
    Sketcher.Constraint("Equal", 5, 7),
    Sketcher.Constraint("Equal", 7, 9),
    Sketcher.Constraint("Equal", 9, 11),
    Sketcher.Constraint("Equal", 11, 13),
    Sketcher.Constraint("Equal", 13, 15),
    Sketcher.Constraint("Equal", 15, 17),
    Sketcher.Constraint("Equal", 17, 19),
    Sketcher.Constraint("Equal", 19, 21),
    Sketcher.Constraint("Equal", 21, 23),
    Sketcher.Constraint("Parallel", 2, 8),
    Sketcher.Constraint("Parallel", 4, 10),
    Sketcher.Constraint("Parallel", 10, 14),
    Sketcher.Constraint("Parallel", 8, 16),
    Sketcher.Constraint("Parallel", 14, 20),
    Sketcher.Constraint("Parallel", 16, 22),
    Sketcher.Constraint("Horizontal", 5, 3, 7, 3),
    Sketcher.Constraint("Horizontal", 3, 3, 9, 3),
    Sketcher.Constraint("Horizontal", 1, 3, 11, 3),
    Sketcher.Constraint("Vertical", 17, 3, 19, 3),
    Sketcher.Constraint("Vertical", 15, 3, 21, 3),
    Sketcher.Constraint("Radius", 1, 5.0),
    Sketcher.Constraint("DistanceY", 18, 2, -1, 1, 5.0),
    Sketcher.Constraint("DistanceX", -1, 1, 1, 3, 12.0),
    Sketcher.Constraint("DistanceY", 3, 3, -1, 1, 75.0),
    Sketcher.Constraint("DistanceX", -1, 1, 7, 3, 115.0),
    Sketcher.Constraint("DistanceY", 13, 3, -1, 1, 140.0),
    Sketcher.Constraint("DistanceX", -1, 1, 15, 3, 63.5),
    Sketcher.Constraint("DistanceX", 3, 3, 13, 3, 53.3),
    Sketcher.Constraint("DistanceX", 12, 1, 12, 2, 88.495),
    Sketcher.Constraint("DistanceY", 2, 2, 21, 3, 14.21),
])
pocket2 = body.newObject("PartDesign::Pocket", "Pocket001")
pocket2.Profile = sketch6
pocket2.Length = 50

# Sketch on XZ plane
sketch7 = body.newObject("Sketcher::SketchObject", "Sketch006")
sketch7.AttachmentSupport = (doc.getObject("XZ_Plane"), [""])
sketch7.MapMode = "FlatFace"
sketch7.addGeometry([
    Part.ArcOfCircle(Part.Circle(Vector(-20.3, -136, 0), Vector(0, 0, 1), 5), math.radians(-90), math.radians(32)),  # 0
    Part.LineSegment(Vector(-20.3, -141, 0), Vector(-79.7, -141, 0)),  # 1
    Part.ArcOfCircle(Part.Circle(Vector(-79.7, -136, 0), Vector(0, 0, 1), 5), math.radians(148), math.radians(270)),  # 2
    Part.LineSegment(Vector(-83.9, -133.4, 0), Vector(-54.2, -85.6, 0)),  # 3
    Part.ArcOfCircle(Part.Circle(Vector(-50, -88.3, 0), Vector(0, 0, 1), 5), math.radians(32), math.radians(148)),  # 4
    Part.LineSegment(Vector(-45.8, -85.6, 0), Vector(-16.1, -133.4, 0)),  # 5
    Part.ArcOfCircle(Part.Circle(Vector(-86, -119.7, 0), Vector(0, 0, 1), 5), math.radians(180), math.radians(328)),  # 6
    Part.LineSegment(Vector(-91, -119.7, 0), Vector(-91, -30.3, 0)),  # 7
    Part.ArcOfCircle(Part.Circle(Vector(-86, -30.3, 0), Vector(0, 0, 1), 5), math.radians(32), math.radians(180)),  # 8
    Part.LineSegment(Vector(-81.8, -27.7, 0), Vector(-54, -72.4, 0)),  # 9
    Part.ArcOfCircle(Part.Circle(Vector(-58.2, -75, 0), Vector(0, 0, 1), 5), math.radians(-32), math.radians(32)),  # 10
    Part.LineSegment(Vector(-54, -77.6, 0), Vector(-81.8, -122.3, 0)),  # 11
    Part.ArcOfCircle(Part.Circle(Vector(-79.7, -14, 0), Vector(0, 0, 1), 5), math.radians(90), math.radians(212)),  # 12
    Part.LineSegment(Vector(-79.7, -9, 0), Vector(-20.3, -9, 0)),  # 13
    Part.ArcOfCircle(Part.Circle(Vector(-20.3, -14, 0), Vector(0, 0, 1), 5), math.radians(-32), math.radians(90)),  # 14
    Part.LineSegment(Vector(-16.1, -16.6, 0), Vector(-45.8, -64.4, 0)),  # 15
    Part.ArcOfCircle(Part.Circle(Vector(-50, -61.7, 0), Vector(0, 0, 1), 5), math.radians(-148), math.radians(-32)),  # 16
    Part.LineSegment(Vector(-54.2, -64.4, 0), Vector(-83.9, -16.6, 0)),  # 17
    Part.ArcOfCircle(Part.Circle(Vector(-14, -30.3, 0), Vector(0, 0, 1), 5), math.radians(0), math.radians(148)),  # 18
    Part.LineSegment(Vector(-9, -30.3, 0), Vector(-9, -119.7, 0)),  # 19
    Part.ArcOfCircle(Part.Circle(Vector(-14, -119.7, 0), Vector(0, 0, 1), 5), math.radians(-148), math.radians(0)),  # 20
    Part.LineSegment(Vector(-18.2, -122.3, 0), Vector(-46, -77.6, 0)),  # 21
    Part.ArcOfCircle(Part.Circle(Vector(-41.8, -75, 0), Vector(0, 0, 1), 5), math.radians(148), math.radians(212)),  # 22
    Part.LineSegment(Vector(-46, -72.4, 0), Vector(-18.2, -27.7, 0)),  # 23
], False)
sketch7.addConstraint([
    Sketcher.Constraint("Tangent", 0, 1, 1, 1),
    Sketcher.Constraint("Tangent", 1, 2, 2, 2),
    Sketcher.Constraint("Tangent", 2, 1, 3, 1),
    Sketcher.Constraint("Tangent", 3, 2, 4, 2),
    Sketcher.Constraint("Tangent", 4, 1, 5, 1),
    Sketcher.Constraint("Tangent", 5, 2, 0, 2),
    Sketcher.Constraint("Tangent", 6, 1, 7, 1),
    Sketcher.Constraint("Tangent", 7, 2, 8, 2),
    Sketcher.Constraint("Tangent", 8, 1, 9, 1),
    Sketcher.Constraint("Tangent", 9, 2, 10, 2),
    Sketcher.Constraint("Tangent", 10, 1, 11, 1),
    Sketcher.Constraint("Tangent", 11, 2, 6, 2),
    Sketcher.Constraint("Tangent", 12, 1, 13, 1),
    Sketcher.Constraint("Tangent", 13, 2, 14, 2),
    Sketcher.Constraint("Tangent", 14, 1, 15, 1),
    Sketcher.Constraint("Tangent", 15, 2, 16, 2),
    Sketcher.Constraint("Tangent", 16, 1, 17, 1),
    Sketcher.Constraint("Tangent", 17, 2, 12, 2),
    Sketcher.Constraint("Tangent", 18, 1, 19, 1),
    Sketcher.Constraint("Tangent", 19, 2, 20, 2),
    Sketcher.Constraint("Tangent", 20, 1, 21, 1),
    Sketcher.Constraint("Tangent", 21, 2, 22, 2),
    Sketcher.Constraint("Tangent", 22, 1, 23, 1),
    Sketcher.Constraint("Tangent", 23, 2, 18, 2),
    Sketcher.Constraint("Horizontal", 1),
    Sketcher.Constraint("Vertical", 7),
    Sketcher.Constraint("Horizontal", 13),
    Sketcher.Constraint("Vertical", 19),
    Sketcher.Constraint("Equal", 0, 2),
    Sketcher.Constraint("Equal", 2, 4),
    Sketcher.Constraint("Equal", 4, 6),
    Sketcher.Constraint("Equal", 6, 8),
    Sketcher.Constraint("Equal", 8, 10),
    Sketcher.Constraint("Equal", 10, 12),
    Sketcher.Constraint("Equal", 12, 14),
    Sketcher.Constraint("Equal", 14, 16),
    Sketcher.Constraint("Equal", 16, 18),
    Sketcher.Constraint("Equal", 18, 20),
    Sketcher.Constraint("Equal", 20, 22),
    Sketcher.Constraint("Parallel", 5, 9),
    Sketcher.Constraint("Parallel", 3, 11),
    Sketcher.Constraint("Parallel", 11, 15),
    Sketcher.Constraint("Parallel", 9, 17),
    Sketcher.Constraint("Parallel", 17, 21),
    Sketcher.Constraint("Parallel", 15, 23),
    Sketcher.Constraint("Horizontal", 8, 3, 18, 3),
    Sketcher.Constraint("Horizontal", 6, 3, 20, 3),
    Sketcher.Constraint("Horizontal", 10, 3, 22, 3),
    Sketcher.Constraint("Vertical", 2, 3, 12, 3),
    Sketcher.Constraint("Vertical", 0, 3, 14, 3),
    Sketcher.Constraint("Radius", 0, 5.0),
    Sketcher.Constraint("DistanceY", 0, 3, -1, 1, 136.0),
    Sketcher.Constraint("DistanceX", 4, 3, -1, 1, 50.0),
    Sketcher.Constraint("DistanceX", 6, 3, -1, 1, 86.0),
    Sketcher.Constraint("DistanceY", 10, 3, -1, 1, 75.0),
    Sketcher.Constraint("DistanceY", 12, 3, -1, 1, 14.0),
    Sketcher.Constraint("DistanceX", 18, 3, -1, 1, 14.0),
    Sketcher.Constraint("Angle", 3, Q("58.151 deg")),
    Sketcher.Constraint("Distance", 9, 52.606),
    Sketcher.Constraint("DistanceX", 1, 2, 1, 1, 59.3064),
])
pocket3 = body.newObject("PartDesign::Pocket", "Pocket002")
pocket3.Profile = sketch7
pocket3.Length = 50
pocket3.Reversed = True

# Sketch on XY plane
sketch8 = body.newObject("Sketcher::SketchObject", "Sketch007")
sketch8.AttachmentSupport = (doc.getObject("XY_Plane"), [""])
sketch8.MapMode = "FlatFace"
sketch8.addGeometry([
    Part.LineSegment(Vector(-2.5, 4.5, 0), Vector(-93.5, 4.5, 0)),  # 0
    Part.ArcOfCircle(Part.Circle(Vector(-93.5, 2.5, 0), Vector(0, 0, 1), 2), math.radians(90), math.radians(180)),  # 1
    Part.LineSegment(Vector(-95.5, 2.5, 0), Vector(-95.5, 1.5, 0)),  # 2
    Part.ArcOfCircle(Part.Circle(Vector(-93.5, 1.5, 0), Vector(0, 0, 1), 2), math.radians(180), math.radians(270)),  # 3
    Part.LineSegment(Vector(-93.5, -0.5, 0), Vector(-2.5, -0.5, 0)),  # 4
    Part.ArcOfCircle(Part.Circle(Vector(-2.5, 1.5, 0), Vector(0, 0, 1), 2), math.radians(-90), math.radians(0)),  # 5
    Part.LineSegment(Vector(-0.5, 1.5, 0), Vector(-0.5, 2.5, 0)),  # 6
    Part.ArcOfCircle(Part.Circle(Vector(-2.5, 2.5, 0), Vector(0, 0, 1), 2), math.radians(0), math.radians(90)),  # 7
], False)
sketch8.addConstraint([
    Sketcher.Constraint("Tangent", 0, 2, 1, 1),
    Sketcher.Constraint("Tangent", 1, 2, 2, 1),
    Sketcher.Constraint("Tangent", 2, 2, 3, 1),
    Sketcher.Constraint("Tangent", 3, 2, 4, 1),
    Sketcher.Constraint("Tangent", 4, 2, 5, 1),
    Sketcher.Constraint("Tangent", 5, 2, 6, 1),
    Sketcher.Constraint("Tangent", 6, 2, 7, 1),
    Sketcher.Constraint("Tangent", 7, 2, 0, 1),
    Sketcher.Constraint("Horizontal", 0),
    Sketcher.Constraint("Vertical", 2),
    Sketcher.Constraint("Horizontal", 4),
    Sketcher.Constraint("Vertical", 6),
    Sketcher.Constraint("Equal", 1, 3),
    Sketcher.Constraint("Equal", 3, 5),
    Sketcher.Constraint("Equal", 5, 7),
    Sketcher.Constraint("Radius", 1, 2.0),
    Sketcher.Constraint("DistanceY", -1, 1, 1, 3, 2.5),
    Sketcher.Constraint("DistanceX", 5, 3, -1, 1, 2.5),
    Sketcher.Constraint("DistanceX", 0, 2, 0, 1, 91.0),
    Sketcher.Constraint("DistanceY", 2, 2, 2, 1, 1.0),
])
pocket4 = body.newObject("PartDesign::Pocket", "Pocket003")
pocket4.Profile = sketch8
pocket4.Length = 1111

doc.recompute()
